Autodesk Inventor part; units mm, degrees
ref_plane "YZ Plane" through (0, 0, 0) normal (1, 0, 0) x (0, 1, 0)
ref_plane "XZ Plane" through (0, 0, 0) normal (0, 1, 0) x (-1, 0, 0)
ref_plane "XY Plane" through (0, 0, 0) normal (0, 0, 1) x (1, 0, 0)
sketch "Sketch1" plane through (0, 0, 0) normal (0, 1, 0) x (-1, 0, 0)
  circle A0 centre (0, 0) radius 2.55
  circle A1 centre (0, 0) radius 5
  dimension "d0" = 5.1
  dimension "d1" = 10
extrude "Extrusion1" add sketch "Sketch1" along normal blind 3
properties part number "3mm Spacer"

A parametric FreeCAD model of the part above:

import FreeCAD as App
import Part
import Sketcher

V = App.Vector
Q = App.Units.Quantity

doc = App.newDocument("Part")
body = doc.addObject("PartDesign::Body", "Body")

# Sketch on XZ plane
sketch1 = body.newObject("Sketcher::SketchObject", "Sketch")
sketch1.AttachmentSupport = (doc.getObject("XZ_Plane"), [""])
sketch1.MapMode = "FlatFace"
sketch1.addGeometry([
    Part.Circle(V(0, 0, 0), V(0, 0, 1), 5),
    Part.Circle(V(0, 0, 0), V(0, 0, 1), 2.5),
], False)
sketch1.addConstraint([
    Sketcher.Constraint("Coincident", 0, 3, -1, 1),
    Sketcher.Constraint("Coincident", 1, 3, -1, 1),
    Sketcher.Constraint("Diameter", 0, Q("10 mm")),
    Sketcher.Constraint("Diameter", 1, Q("5.1 mm")),
])
pad1 = body.newObject("PartDesign::Pad", "Pad")
pad1.Profile = sketch1
pad1.Length = 3
pad1.Reversed = True

doc.recompute()
